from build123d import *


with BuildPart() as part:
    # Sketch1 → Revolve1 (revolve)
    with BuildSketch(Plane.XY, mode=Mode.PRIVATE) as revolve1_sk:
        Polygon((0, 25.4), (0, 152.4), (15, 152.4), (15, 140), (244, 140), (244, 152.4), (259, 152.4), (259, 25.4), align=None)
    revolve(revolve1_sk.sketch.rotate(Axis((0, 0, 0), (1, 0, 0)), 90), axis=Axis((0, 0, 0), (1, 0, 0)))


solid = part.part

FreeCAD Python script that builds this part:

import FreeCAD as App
import Part
import Sketcher

V = App.Vector


def add_polygon(sketch, points):
    """Adds a closed chain of lines whose ends are joined by coincident constraints."""
    first, n = sketch.GeometryCount, len(points)
    for a, b in zip(points, points[1:] + points[:1]):
        sketch.addGeometry(Part.LineSegment(App.Vector(*a, 0), App.Vector(*b, 0)), False)
    for i in range(n):
        sketch.addConstraint(Sketcher.Constraint("Coincident", first + i, 2, first + (i + 1) % n, 1))

doc = App.newDocument("Part")
body = doc.addObject("PartDesign::Body", "Body")

# Sketch on XY plane
sketch1 = doc.addObject("Sketcher::SketchObject", "Sketch")
body.addObject(sketch1)
sketch1.AttachmentSupport = (doc.XY_Plane, [""])
sketch1.MapMode = "FlatFace"
add_polygon(sketch1, [(0, 152.4), (0, 25.4), (259, 25.4), (259, 152.4), (244, 152.4), (244, 140), (15, 140), (15, 152.4)])  # lines 0-7
sketch1.addConstraint([
    Sketcher.Constraint("Vertical", 0),
    Sketcher.Constraint("Horizontal", 1),
    Sketcher.Constraint("Vertical", 2),
    Sketcher.Constraint("Horizontal", 3),
    Sketcher.Constraint("Vertical", 4),
    Sketcher.Constraint("Horizontal", 5),
    Sketcher.Constraint("Vertical", 6),
    Sketcher.Constraint("Horizontal", 7),
    Sketcher.Constraint("PointOnObject", 0, 2, -2),
    Sketcher.Constraint("Horizontal", 3, 2, 6, 2),
    Sketcher.Constraint("Equal", 3, 7),
    Sketcher.Constraint("DistanceX", 1, 1, 1, 2, 259.0),
    Sketcher.Constraint("DistanceX", 3, 2, 3, 1, 15.0),
    Sketcher.Constraint("DistanceY", 0, 2, 0, 1, 127.0),
    Sketcher.Constraint("DistanceY", 4, 2, 4, 1, 12.4),
    Sketcher.Constraint("DistanceY", -1, 1, 4, 2, 140.0),
])
revolution = doc.addObject("PartDesign::Revolution", "Revolution")
body.addObject(revolution)
revolution.Profile = sketch1
revolution.ReferenceAxis = (sketch1, ["H_Axis"])
revolution.Angle = 360

doc.recompute()
